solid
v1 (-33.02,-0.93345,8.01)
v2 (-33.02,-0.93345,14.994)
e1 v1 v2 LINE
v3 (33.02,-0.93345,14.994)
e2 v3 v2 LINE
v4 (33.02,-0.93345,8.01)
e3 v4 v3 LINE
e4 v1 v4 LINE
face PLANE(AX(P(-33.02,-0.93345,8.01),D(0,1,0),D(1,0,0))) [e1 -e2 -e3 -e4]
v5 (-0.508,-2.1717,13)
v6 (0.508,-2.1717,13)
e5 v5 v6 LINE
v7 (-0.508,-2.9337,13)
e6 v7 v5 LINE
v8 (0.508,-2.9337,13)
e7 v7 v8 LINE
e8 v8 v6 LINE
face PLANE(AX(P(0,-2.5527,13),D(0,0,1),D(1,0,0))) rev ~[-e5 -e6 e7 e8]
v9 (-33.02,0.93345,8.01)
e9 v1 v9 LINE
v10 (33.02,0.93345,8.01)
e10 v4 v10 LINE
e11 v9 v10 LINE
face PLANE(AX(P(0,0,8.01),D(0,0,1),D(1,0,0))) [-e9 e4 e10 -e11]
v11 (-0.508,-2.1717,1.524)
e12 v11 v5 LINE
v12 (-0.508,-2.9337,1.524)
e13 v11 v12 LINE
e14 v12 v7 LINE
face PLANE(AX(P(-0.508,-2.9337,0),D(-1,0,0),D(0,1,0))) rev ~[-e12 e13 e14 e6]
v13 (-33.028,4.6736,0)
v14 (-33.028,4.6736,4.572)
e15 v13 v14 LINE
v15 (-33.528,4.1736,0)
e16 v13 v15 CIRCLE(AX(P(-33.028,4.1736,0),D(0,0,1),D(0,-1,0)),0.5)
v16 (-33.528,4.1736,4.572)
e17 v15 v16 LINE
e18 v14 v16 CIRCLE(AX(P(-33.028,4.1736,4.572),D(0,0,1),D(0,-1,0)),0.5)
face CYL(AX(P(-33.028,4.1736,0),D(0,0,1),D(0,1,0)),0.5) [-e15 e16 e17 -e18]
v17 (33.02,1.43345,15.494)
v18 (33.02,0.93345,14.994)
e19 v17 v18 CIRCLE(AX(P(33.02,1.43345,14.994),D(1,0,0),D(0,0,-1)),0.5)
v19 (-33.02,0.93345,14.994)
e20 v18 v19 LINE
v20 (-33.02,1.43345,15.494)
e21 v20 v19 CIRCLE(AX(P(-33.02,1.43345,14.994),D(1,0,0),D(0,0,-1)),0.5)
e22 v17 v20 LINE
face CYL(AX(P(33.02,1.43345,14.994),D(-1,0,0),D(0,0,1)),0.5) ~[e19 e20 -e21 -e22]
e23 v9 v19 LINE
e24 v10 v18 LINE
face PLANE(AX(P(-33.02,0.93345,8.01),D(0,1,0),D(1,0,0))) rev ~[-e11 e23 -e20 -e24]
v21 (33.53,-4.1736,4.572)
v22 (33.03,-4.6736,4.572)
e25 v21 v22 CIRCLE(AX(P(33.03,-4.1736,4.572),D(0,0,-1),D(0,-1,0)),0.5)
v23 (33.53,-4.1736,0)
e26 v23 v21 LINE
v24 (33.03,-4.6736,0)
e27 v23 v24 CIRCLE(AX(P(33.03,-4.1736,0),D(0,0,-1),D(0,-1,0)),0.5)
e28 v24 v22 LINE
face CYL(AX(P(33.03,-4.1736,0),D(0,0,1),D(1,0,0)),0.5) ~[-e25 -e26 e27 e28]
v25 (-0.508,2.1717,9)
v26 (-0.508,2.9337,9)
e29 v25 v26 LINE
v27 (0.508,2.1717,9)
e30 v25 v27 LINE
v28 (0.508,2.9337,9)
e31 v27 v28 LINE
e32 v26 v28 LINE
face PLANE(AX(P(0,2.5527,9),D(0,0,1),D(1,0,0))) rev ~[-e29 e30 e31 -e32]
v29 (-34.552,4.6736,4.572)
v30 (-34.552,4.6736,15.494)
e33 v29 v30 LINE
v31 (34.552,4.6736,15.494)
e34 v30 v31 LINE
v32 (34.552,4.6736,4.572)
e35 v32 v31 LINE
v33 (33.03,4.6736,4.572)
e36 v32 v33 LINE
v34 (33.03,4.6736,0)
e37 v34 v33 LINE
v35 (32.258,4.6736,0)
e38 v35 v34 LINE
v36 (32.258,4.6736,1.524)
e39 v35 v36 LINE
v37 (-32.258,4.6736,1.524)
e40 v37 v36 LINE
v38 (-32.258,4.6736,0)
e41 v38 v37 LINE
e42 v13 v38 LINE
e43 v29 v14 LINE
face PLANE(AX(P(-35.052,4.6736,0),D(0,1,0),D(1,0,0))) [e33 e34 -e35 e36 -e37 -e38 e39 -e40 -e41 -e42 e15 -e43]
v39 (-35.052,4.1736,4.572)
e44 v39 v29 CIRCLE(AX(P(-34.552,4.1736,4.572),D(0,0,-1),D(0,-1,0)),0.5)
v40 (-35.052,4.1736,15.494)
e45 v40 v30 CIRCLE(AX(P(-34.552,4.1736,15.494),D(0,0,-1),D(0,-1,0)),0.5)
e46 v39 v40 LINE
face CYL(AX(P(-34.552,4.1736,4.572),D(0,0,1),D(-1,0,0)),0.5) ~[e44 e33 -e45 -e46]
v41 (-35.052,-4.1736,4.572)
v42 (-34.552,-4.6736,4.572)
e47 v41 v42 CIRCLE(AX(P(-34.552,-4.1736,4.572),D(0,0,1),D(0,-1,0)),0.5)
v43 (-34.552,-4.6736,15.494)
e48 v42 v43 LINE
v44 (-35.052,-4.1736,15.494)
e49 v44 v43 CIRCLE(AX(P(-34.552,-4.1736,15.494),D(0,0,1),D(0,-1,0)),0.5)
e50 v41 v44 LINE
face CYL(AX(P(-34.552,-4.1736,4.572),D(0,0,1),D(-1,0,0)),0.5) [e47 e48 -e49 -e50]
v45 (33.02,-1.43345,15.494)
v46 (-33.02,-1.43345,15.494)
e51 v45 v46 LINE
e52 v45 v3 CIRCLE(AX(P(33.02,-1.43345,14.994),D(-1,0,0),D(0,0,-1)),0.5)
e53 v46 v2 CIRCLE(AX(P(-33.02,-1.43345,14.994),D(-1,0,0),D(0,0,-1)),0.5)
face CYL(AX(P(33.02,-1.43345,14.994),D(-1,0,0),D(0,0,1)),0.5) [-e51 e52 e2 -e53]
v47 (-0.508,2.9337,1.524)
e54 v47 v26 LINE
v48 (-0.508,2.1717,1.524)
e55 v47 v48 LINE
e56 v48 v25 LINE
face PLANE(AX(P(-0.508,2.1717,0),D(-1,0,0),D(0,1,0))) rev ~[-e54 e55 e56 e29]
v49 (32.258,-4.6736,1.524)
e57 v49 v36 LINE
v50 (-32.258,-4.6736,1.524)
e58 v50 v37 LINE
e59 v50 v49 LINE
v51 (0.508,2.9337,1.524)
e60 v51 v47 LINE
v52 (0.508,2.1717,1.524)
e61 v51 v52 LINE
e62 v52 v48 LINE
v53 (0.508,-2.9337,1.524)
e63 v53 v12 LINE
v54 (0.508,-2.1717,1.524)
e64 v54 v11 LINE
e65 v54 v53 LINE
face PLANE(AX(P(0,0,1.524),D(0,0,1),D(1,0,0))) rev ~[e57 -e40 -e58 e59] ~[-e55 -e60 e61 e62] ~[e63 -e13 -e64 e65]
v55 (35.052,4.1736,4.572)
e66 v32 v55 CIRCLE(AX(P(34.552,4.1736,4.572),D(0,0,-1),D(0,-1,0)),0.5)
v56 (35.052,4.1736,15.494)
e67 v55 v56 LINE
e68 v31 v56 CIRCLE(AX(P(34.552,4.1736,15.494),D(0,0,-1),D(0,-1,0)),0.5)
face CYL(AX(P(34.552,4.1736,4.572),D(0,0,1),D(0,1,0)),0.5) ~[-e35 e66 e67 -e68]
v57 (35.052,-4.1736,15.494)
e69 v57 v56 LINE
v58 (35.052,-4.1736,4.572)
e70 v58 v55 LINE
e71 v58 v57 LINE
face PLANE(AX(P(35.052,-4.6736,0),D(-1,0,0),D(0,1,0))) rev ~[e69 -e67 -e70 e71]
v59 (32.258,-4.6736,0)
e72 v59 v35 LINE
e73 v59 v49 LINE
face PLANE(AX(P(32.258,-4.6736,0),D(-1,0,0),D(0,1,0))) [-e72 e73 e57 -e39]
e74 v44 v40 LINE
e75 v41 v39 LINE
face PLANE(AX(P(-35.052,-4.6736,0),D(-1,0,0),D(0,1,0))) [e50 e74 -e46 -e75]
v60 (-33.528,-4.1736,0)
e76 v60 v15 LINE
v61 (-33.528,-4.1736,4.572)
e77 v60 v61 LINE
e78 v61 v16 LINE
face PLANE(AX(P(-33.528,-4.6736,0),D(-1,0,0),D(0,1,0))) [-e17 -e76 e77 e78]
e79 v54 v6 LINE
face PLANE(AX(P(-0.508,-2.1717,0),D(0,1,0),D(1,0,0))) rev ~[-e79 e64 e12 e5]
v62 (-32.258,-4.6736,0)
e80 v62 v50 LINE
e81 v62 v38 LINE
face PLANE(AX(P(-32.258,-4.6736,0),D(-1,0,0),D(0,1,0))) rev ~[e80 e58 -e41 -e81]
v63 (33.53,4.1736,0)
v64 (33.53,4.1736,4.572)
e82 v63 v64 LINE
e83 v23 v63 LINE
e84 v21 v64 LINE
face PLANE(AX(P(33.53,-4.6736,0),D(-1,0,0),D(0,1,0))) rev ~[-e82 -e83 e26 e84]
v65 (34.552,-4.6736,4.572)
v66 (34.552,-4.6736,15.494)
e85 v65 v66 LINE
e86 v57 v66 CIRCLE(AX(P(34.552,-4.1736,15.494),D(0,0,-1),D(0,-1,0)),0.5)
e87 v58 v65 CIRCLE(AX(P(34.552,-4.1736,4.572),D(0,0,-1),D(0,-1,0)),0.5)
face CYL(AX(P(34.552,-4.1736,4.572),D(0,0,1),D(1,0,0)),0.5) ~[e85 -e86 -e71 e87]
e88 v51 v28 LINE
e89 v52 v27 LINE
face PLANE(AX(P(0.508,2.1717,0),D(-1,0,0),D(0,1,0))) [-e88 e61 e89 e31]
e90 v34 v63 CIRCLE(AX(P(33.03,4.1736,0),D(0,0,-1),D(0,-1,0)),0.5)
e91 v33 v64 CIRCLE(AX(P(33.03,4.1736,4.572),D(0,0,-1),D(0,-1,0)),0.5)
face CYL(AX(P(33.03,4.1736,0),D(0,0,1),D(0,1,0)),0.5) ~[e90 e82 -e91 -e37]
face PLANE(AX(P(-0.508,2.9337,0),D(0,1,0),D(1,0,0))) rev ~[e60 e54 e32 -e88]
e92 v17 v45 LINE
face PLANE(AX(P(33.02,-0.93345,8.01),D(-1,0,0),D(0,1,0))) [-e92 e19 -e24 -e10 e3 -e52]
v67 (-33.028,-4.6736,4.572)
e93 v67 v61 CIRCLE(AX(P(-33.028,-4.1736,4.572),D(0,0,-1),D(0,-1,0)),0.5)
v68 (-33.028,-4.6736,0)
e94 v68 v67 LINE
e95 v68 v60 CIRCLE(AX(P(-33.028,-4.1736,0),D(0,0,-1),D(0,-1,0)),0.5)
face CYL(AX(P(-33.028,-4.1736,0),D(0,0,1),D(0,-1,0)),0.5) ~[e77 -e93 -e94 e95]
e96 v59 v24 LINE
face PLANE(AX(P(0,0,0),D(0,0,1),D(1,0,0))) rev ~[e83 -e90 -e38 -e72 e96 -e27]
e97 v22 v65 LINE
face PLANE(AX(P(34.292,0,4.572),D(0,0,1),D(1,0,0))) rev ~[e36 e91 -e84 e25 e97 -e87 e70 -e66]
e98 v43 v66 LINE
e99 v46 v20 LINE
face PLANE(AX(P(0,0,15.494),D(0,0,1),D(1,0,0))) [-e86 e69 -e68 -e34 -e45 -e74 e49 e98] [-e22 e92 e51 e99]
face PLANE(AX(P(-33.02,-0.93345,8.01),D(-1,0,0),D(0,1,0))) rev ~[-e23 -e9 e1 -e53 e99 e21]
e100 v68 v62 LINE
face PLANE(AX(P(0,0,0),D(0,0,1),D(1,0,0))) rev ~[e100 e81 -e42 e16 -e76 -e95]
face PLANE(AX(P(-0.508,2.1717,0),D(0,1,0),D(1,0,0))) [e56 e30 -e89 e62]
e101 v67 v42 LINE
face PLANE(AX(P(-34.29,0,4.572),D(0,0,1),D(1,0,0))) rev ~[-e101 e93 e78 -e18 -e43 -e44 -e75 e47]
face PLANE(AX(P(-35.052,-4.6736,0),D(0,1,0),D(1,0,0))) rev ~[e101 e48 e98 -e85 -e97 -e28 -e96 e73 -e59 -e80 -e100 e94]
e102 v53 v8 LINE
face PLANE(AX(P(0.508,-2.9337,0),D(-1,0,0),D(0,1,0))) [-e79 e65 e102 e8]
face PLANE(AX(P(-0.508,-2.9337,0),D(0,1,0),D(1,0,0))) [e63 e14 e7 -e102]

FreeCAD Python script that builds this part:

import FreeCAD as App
import Part
import Sketcher

V = App.Vector
Q = App.Units.Quantity


def edges_at(feature, points):
    """Names of the edges that pass closest to the given points."""
    edges = feature.Shape.Edges
    near = lambda p: min(range(len(edges)), key=lambda i: edges[i].distToShape(Part.Vertex(*p))[0])
    return sorted({f"Edge{near(p) + 1}" for p in points})

doc = App.newDocument("Part")
body = doc.addObject("PartDesign::Body", "Body")

sketch1 = body.newObject("Sketcher::SketchObject", "Sketch")
sketch1.AttachmentSupport = (doc.getObject("XY_Plane"), [""])
sketch1.MapMode = "FlatFace"
sketch1.addGeometry(Part.LineSegment(V(-35, 5, 0), V(-35, -5, 0)), False)
sketch1.addGeometry(Part.LineSegment(V(-35, -5, 0), V(35, -5, 0)), False)
sketch1.addGeometry(Part.LineSegment(V(35, -5, 0), V(35, 5, 0)), False)
sketch1.addGeometry(Part.LineSegment(V(35, 5, 0), V(-35, 5, 0)), False)
sketch1.addConstraint(Sketcher.Constraint("Coincident", 0, 2, 1, 1))
sketch1.addConstraint(Sketcher.Constraint("Coincident", 1, 2, 2, 1))
sketch1.addConstraint(Sketcher.Constraint("Coincident", 2, 2, 3, 1))
sketch1.addConstraint(Sketcher.Constraint("Coincident", 3, 2, 0, 1))
sketch1.addConstraint(Sketcher.Constraint("Vertical", 0))
sketch1.addConstraint(Sketcher.Constraint("Horizontal", 1))
sketch1.addConstraint(Sketcher.Constraint("Vertical", 2))
sketch1.addConstraint(Sketcher.Constraint("Horizontal", 3))
sketch1.addConstraint(Sketcher.Constraint("Symmetric", 0, 2, 2, 2, -1, 1))
sketch1.addConstraint(Sketcher.Constraint("DistanceX", 1, 1, 1, 2, Q("2.76 in")))
sketch1.addConstraint(Sketcher.Constraint("DistanceY", 0, 2, 0, 1, Q("0.368 in")))
pad1 = body.newObject("PartDesign::Pad", "Pad")
pad1.Profile = sketch1
pad1.Length = Q("0.61 in")

sketch2 = body.newObject("Sketcher::SketchObject", "Sketch001")
sketch2.AttachmentSupport = (doc.getObject("XY_Plane"), [""])
sketch2.MapMode = "FlatFace"
sketch2.AttachmentOffset = App.Placement(V(0, 0, 8.01), App.Rotation())
sketch2.addGeometry(Part.LineSegment(V(-33, 0.9, 0), V(-33, -0.9, 0)), False)
sketch2.addGeometry(Part.LineSegment(V(-33, -0.9, 0), V(33, -0.9, 0)), False)
sketch2.addGeometry(Part.LineSegment(V(33, -0.9, 0), V(33, 0.9, 0)), False)
sketch2.addGeometry(Part.LineSegment(V(33, 0.9, 0), V(-33, 0.9, 0)), False)
sketch2.addConstraint(Sketcher.Constraint("Coincident", 0, 2, 1, 1))
sketch2.addConstraint(Sketcher.Constraint("Coincident", 1, 2, 2, 1))
sketch2.addConstraint(Sketcher.Constraint("Coincident", 2, 2, 3, 1))
sketch2.addConstraint(Sketcher.Constraint("Coincident", 3, 2, 0, 1))
sketch2.addConstraint(Sketcher.Constraint("Vertical", 0))
sketch2.addConstraint(Sketcher.Constraint("Horizontal", 1))
sketch2.addConstraint(Sketcher.Constraint("Vertical", 2))
sketch2.addConstraint(Sketcher.Constraint("Horizontal", 3))
sketch2.addConstraint(Sketcher.Constraint("Symmetric", 0, 2, 2, 2, -1, 1))
sketch2.addConstraint(Sketcher.Constraint("DistanceX", 1, 1, 1, 2, Q("2.6 in")))
sketch2.addConstraint(Sketcher.Constraint("DistanceY", 0, 2, 0, 1, Q("0.0735 in")))
pocket1 = body.newObject("PartDesign::Pocket", "Pocket")
pocket1.Profile = sketch2
pocket1.Length = Q("0.295 in")
pocket1.Reversed = True

sketch3 = body.newObject("Sketcher::SketchObject", "Sketch002")
sketch3.AttachmentSupport = (doc.getObject("XY_Plane"), [""])
sketch3.MapMode = "FlatFace"
sketch3.addGeometry(Part.LineSegment(V(-35.1, 4.7, 0), V(-35.1, -4.7, 0)), False)
sketch3.addGeometry(Part.LineSegment(V(-35.1, -4.7, 0), V(-33.5, -4.7, 0)), False)
sketch3.addGeometry(Part.LineSegment(V(-33.5, -4.7, 0), V(-33.5, 4.7, 0)), False)
sketch3.addGeometry(Part.LineSegment(V(-33.5, 4.7, 0), V(-35.1, 4.7, 0)), False)
sketch3.addConstraint(Sketcher.Constraint("Coincident", 0, 2, 1, 1))
sketch3.addConstraint(Sketcher.Constraint("Coincident", 1, 2, 2, 1))
sketch3.addConstraint(Sketcher.Constraint("Coincident", 2, 2, 3, 1))
sketch3.addConstraint(Sketcher.Constraint("Coincident", 3, 2, 0, 1))
sketch3.addConstraint(Sketcher.Constraint("Vertical", 0))
sketch3.addConstraint(Sketcher.Constraint("Horizontal", 1))
sketch3.addConstraint(Sketcher.Constraint("Vertical", 2))
sketch3.addConstraint(Sketcher.Constraint("Horizontal", 3))
sketch3.addConstraint(Sketcher.Constraint("DistanceX", 1, 1, 1, 2, Q("0.06 in")))
sketch3.addConstraint(Sketcher.Constraint("DistanceY", 0, 2, 0, 1, Q("0.368 in")))
sketch3.addConstraint(Sketcher.Constraint("DistanceX", 0, 2, -1, 1, Q("1.38 in")))
sketch3.addConstraint(Sketcher.Constraint("DistanceY", 0, 2, -1, 1, Q("0.184 in")))
pocket2 = body.newObject("PartDesign::Pocket", "Pocket001")
pocket2.Profile = sketch3
pocket2.Length = Q("0.18 in")
pocket2.Reversed = True

sketch4 = body.newObject("Sketcher::SketchObject", "Sketch003")
sketch4.AttachmentSupport = (doc.getObject("XY_Plane"), [""])
sketch4.MapMode = "FlatFace"
sketch4.addGeometry(Part.LineSegment(V(33.5, 4.7, 0), V(33.5, -4.7, 0)), False)
sketch4.addGeometry(Part.LineSegment(V(33.5, -4.7, 0), V(35.1, -4.7, 0)), False)
sketch4.addGeometry(Part.LineSegment(V(35.1, -4.7, 0), V(35.1, 4.7, 0)), False)
sketch4.addGeometry(Part.LineSegment(V(35.1, 4.7, 0), V(33.5, 4.7, 0)), False)
sketch4.addConstraint(Sketcher.Constraint("Coincident", 0, 2, 1, 1))
sketch4.addConstraint(Sketcher.Constraint("Coincident", 1, 2, 2, 1))
sketch4.addConstraint(Sketcher.Constraint("Coincident", 2, 2, 3, 1))
sketch4.addConstraint(Sketcher.Constraint("Coincident", 3, 2, 0, 1))
sketch4.addConstraint(Sketcher.Constraint("Vertical", 0))
sketch4.addConstraint(Sketcher.Constraint("Horizontal", 1))
sketch4.addConstraint(Sketcher.Constraint("Vertical", 2))
sketch4.addConstraint(Sketcher.Constraint("Horizontal", 3))
sketch4.addConstraint(Sketcher.Constraint("DistanceX", 1, 1, 1, 2, Q("0.06 in")))
sketch4.addConstraint(Sketcher.Constraint("DistanceY", 0, 2, 0, 1, Q("0.368 in")))
sketch4.addConstraint(Sketcher.Constraint("DistanceY", 0, 2, -1, 1, Q("0.184 in")))
sketch4.addConstraint(Sketcher.Constraint("DistanceX", -1, 1, 0, 2, 33.53))
pocket3 = body.newObject("PartDesign::Pocket", "Pocket002")
pocket3.Profile = sketch4
pocket3.Length = Q("0.18 in")
pocket3.Reversed = True
doc.recompute()

fillet = body.newObject("PartDesign::Fillet", "Fillet")
fillet.Base = (pocket3, edges_at(pocket3, [(-35.052, -4.674, 10.033)]))
fillet.Radius = 0.5
doc.recompute()

fillet2 = body.newObject("PartDesign::Fillet", "Fillet001")
fillet2.Base = (fillet, edges_at(fillet, [(-35.052, 4.674, 10.033)]))
fillet2.Radius = 0.5
doc.recompute()

fillet3 = body.newObject("PartDesign::Fillet", "Fillet002")
fillet3.Base = (fillet2, edges_at(fillet2, [(-33.528, -4.674, 2.286)]))
fillet3.Radius = 0.5
doc.recompute()

fillet4 = body.newObject("PartDesign::Fillet", "Fillet003")
fillet4.Base = (fillet3, edges_at(fillet3, [(-33.528, 4.674, 2.286)]))
fillet4.Radius = 0.5
doc.recompute()

fillet5 = body.newObject("PartDesign::Fillet", "Fillet004")
fillet5.Base = (fillet4, edges_at(fillet4, [(33.53, -4.674, 2.286)]))
fillet5.Radius = 0.5
doc.recompute()

fillet6 = body.newObject("PartDesign::Fillet", "Fillet005")
fillet6.Base = (fillet5, edges_at(fillet5, [(35.052, -4.674, 10.033)]))
fillet6.Radius = 0.5
doc.recompute()

fillet7 = body.newObject("PartDesign::Fillet", "Fillet006")
fillet7.Base = (fillet6, edges_at(fillet6, [(33.53, 4.674, 2.286)]))
fillet7.Radius = 0.5
doc.recompute()

fillet8 = body.newObject("PartDesign::Fillet", "Fillet007")
fillet8.Base = (fillet7, edges_at(fillet7, [(35.052, 4.674, 10.033)]))
fillet8.Radius = 0.5
doc.recompute()

fillet9 = body.newObject("PartDesign::Fillet", "Fillet008")
fillet9.Base = (fillet8, edges_at(fillet8, [(0, -0.933, 15.494)]))
fillet9.Radius = 0.5
doc.recompute()

fillet10 = body.newObject("PartDesign::Fillet", "Fillet009")
fillet10.Base = (fillet9, edges_at(fillet9, [(0, 0.933, 15.494)]))
fillet10.Radius = 0.5

sketch5 = body.newObject("Sketcher::SketchObject", "Sketch004")
sketch5.AttachmentSupport = (doc.getObject("XY_Plane"), [""])
sketch5.MapMode = "FlatFace"
sketch5.addGeometry(Part.LineSegment(V(-32, 5, 0), V(-32, -5, 0)), False)
sketch5.addGeometry(Part.LineSegment(V(-32, -5, 0), V(32, -5, 0)), False)
sketch5.addGeometry(Part.LineSegment(V(32, -5, 0), V(32, 5, 0)), False)
sketch5.addGeometry(Part.LineSegment(V(32, 5, 0), V(-32, 5, 0)), False)
sketch5.addConstraint(Sketcher.Constraint("Coincident", 0, 2, 1, 1))
sketch5.addConstraint(Sketcher.Constraint("Coincident", 1, 2, 2, 1))
sketch5.addConstraint(Sketcher.Constraint("Coincident", 2, 2, 3, 1))
sketch5.addConstraint(Sketcher.Constraint("Coincident", 3, 2, 0, 1))
sketch5.addConstraint(Sketcher.Constraint("Vertical", 0))
sketch5.addConstraint(Sketcher.Constraint("Horizontal", 1))
sketch5.addConstraint(Sketcher.Constraint("Vertical", 2))
sketch5.addConstraint(Sketcher.Constraint("Horizontal", 3))
sketch5.addConstraint(Sketcher.Constraint("Symmetric", 0, 2, 2, 2, -1, 1))
sketch5.addConstraint(Sketcher.Constraint("DistanceX", 1, 1, 1, 2, Q("2.54 in")))
sketch5.addConstraint(Sketcher.Constraint("DistanceY", 0, 2, 0, 1, Q("0.368 in")))
pocket4 = body.newObject("PartDesign::Pocket", "Pocket003")
pocket4.Profile = sketch5
pocket4.Length = Q("0.06 in")
pocket4.Reversed = True

sketch6 = body.newObject("Sketcher::SketchObject", "Sketch005")
sketch6.AttachmentSupport = (doc.getObject("XY_Plane"), [""])
sketch6.MapMode = "FlatFace"
sketch6.addGeometry(Part.LineSegment(V(-0.5, -2.2, 0), V(-0.5, -2.9, 0)), False)
sketch6.addGeometry(Part.LineSegment(V(-0.5, -2.9, 0), V(0.5, -2.9, 0)), False)
sketch6.addGeometry(Part.LineSegment(V(0.5, -2.9, 0), V(0.5, -2.2, 0)), False)
sketch6.addGeometry(Part.LineSegment(V(0.5, -2.2, 0), V(-0.5, -2.2, 0)), False)
sketch6.addConstraint(Sketcher.Constraint("Coincident", 0, 2, 1, 1))
sketch6.addConstraint(Sketcher.Constraint("Coincident", 1, 2, 2, 1))
sketch6.addConstraint(Sketcher.Constraint("Coincident", 2, 2, 3, 1))
sketch6.addConstraint(Sketcher.Constraint("Coincident", 3, 2, 0, 1))
sketch6.addConstraint(Sketcher.Constraint("Vertical", 0))
sketch6.addConstraint(Sketcher.Constraint("Horizontal", 1))
sketch6.addConstraint(Sketcher.Constraint("Vertical", 2))
sketch6.addConstraint(Sketcher.Constraint("Horizontal", 3))
sketch6.addConstraint(Sketcher.Constraint("DistanceX", 1, 1, 1, 2, Q("0.04 in")))
sketch6.addConstraint(Sketcher.Constraint("DistanceY", 0, 2, 0, 1, Q("0.03 in")))
sketch6.addConstraint(Sketcher.Constraint("DistanceX", 0, 2, -1, 1, Q("0.02 in")))
sketch6.addConstraint(Sketcher.Constraint("DistanceY", 0, 2, -1, 1, Q("0.1155 in")))
pocket5 = body.newObject("PartDesign::Pocket", "Pocket004")
pocket5.Profile = sketch6
pocket5.Length = 13
pocket5.Reversed = True

sketch7 = body.newObject("Sketcher::SketchObject", "Sketch006")
sketch7.AttachmentSupport = (doc.getObject("XY_Plane"), [""])
sketch7.MapMode = "FlatFace"
sketch7.addGeometry(Part.LineSegment(V(-0.5, 2.9, 0), V(-0.5, 2.2, 0)), False)
sketch7.addGeometry(Part.LineSegment(V(-0.5, 2.2, 0), V(0.5, 2.2, 0)), False)
sketch7.addGeometry(Part.LineSegment(V(0.5, 2.2, 0), V(0.5, 2.9, 0)), False)
sketch7.addGeometry(Part.LineSegment(V(0.5, 2.9, 0), V(-0.5, 2.9, 0)), False)
sketch7.addConstraint(Sketcher.Constraint("Coincident", 0, 2, 1, 1))
sketch7.addConstraint(Sketcher.Constraint("Coincident", 1, 2, 2, 1))
sketch7.addConstraint(Sketcher.Constraint("Coincident", 2, 2, 3, 1))
sketch7.addConstraint(Sketcher.Constraint("Coincident", 3, 2, 0, 1))
sketch7.addConstraint(Sketcher.Constraint("Vertical", 0))
sketch7.addConstraint(Sketcher.Constraint("Horizontal", 1))
sketch7.addConstraint(Sketcher.Constraint("Vertical", 2))
sketch7.addConstraint(Sketcher.Constraint("Horizontal", 3))
sketch7.addConstraint(Sketcher.Constraint("DistanceX", 1, 1, 1, 2, Q("0.04 in")))
sketch7.addConstraint(Sketcher.Constraint("DistanceY", 0, 2, 0, 1, Q("0.03 in")))
sketch7.addConstraint(Sketcher.Constraint("DistanceX", 0, 2, -1, 1, Q("0.02 in")))
sketch7.addConstraint(Sketcher.Constraint("DistanceY", -1, 1, 0, 2, Q("0.0855 in")))
pocket6 = body.newObject("PartDesign::Pocket", "Pocket005")
pocket6.Profile = sketch7
pocket6.Length = 9
pocket6.Reversed = True

doc.recompute()
